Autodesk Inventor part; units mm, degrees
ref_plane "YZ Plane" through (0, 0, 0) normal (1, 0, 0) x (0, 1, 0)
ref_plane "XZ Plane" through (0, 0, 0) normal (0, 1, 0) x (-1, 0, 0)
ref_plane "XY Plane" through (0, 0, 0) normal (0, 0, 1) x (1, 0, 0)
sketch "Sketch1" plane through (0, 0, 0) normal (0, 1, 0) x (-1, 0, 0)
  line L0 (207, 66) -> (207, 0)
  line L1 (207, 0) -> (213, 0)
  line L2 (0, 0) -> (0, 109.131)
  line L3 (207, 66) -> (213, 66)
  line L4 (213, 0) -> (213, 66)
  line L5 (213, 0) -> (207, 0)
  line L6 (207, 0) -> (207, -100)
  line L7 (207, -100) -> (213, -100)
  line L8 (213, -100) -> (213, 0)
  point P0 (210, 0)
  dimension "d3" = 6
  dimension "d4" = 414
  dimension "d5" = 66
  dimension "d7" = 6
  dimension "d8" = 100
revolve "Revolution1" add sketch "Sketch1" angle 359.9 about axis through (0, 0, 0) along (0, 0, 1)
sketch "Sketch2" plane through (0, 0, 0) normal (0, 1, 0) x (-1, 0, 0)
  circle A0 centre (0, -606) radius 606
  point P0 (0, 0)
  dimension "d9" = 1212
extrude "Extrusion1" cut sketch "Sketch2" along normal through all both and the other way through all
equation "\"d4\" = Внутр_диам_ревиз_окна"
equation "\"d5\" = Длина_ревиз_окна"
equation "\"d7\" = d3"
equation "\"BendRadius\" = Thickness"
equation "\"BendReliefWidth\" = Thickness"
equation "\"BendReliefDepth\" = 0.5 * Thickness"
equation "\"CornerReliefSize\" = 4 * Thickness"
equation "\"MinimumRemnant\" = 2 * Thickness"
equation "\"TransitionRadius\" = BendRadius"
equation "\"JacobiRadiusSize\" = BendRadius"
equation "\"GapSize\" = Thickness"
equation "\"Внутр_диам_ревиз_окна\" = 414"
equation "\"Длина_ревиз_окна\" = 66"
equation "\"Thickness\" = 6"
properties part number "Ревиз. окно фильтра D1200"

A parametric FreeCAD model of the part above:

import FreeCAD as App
import Part
import Sketcher

V = App.Vector

doc = App.newDocument("Part")
body = doc.addObject("PartDesign::Body", "Body")

sketch1 = body.newObject("Sketcher::SketchObject", "Sketch")
sketch1.AttachmentSupport = (doc.getObject("XZ_Plane"), [""])
sketch1.MapMode = "FlatFace"
sketch1.addGeometry([
    Part.LineSegment(V(-213, 66, 0), V(-207, 66, 0)),
    Part.LineSegment(V(-207, 66, 0), V(-207, -100, 0)),
    Part.LineSegment(V(-207, -100, 0), V(-213, -100, 0)),
    Part.LineSegment(V(-213, -100, 0), V(-213, 66, 0)),
], False)
sketch1.addConstraint([
    Sketcher.Constraint("Coincident", 0, 2, 1, 1),
    Sketcher.Constraint("Coincident", 1, 2, 2, 1),
    Sketcher.Constraint("Coincident", 2, 2, 3, 1),
    Sketcher.Constraint("Coincident", 3, 2, 0, 1),
    Sketcher.Constraint("Horizontal", 0),
    Sketcher.Constraint("Vertical", 1),
    Sketcher.Constraint("Horizontal", 2),
    Sketcher.Constraint("Vertical", 3),
    Sketcher.Constraint("DistanceX", 0, 1, 0, 2, 6.0),
    Sketcher.Constraint("DistanceY", -1, 1, 0, 2, 66.0),
    Sketcher.Constraint("DistanceY", 1, 2, -1, 1, 100.0),
    Sketcher.Constraint("DistanceX", 0, 2, -1, 1, 207.0),
])
revolution = body.newObject("PartDesign::Revolution", "Revolution")
revolution.Profile = sketch1
revolution.ReferenceAxis = (sketch1, ["V_Axis"])
revolution.Angle = 359.9

sketch2 = body.newObject("Sketcher::SketchObject", "Sketch001")
sketch2.AttachmentSupport = (doc.getObject("XZ_Plane"), [""])
sketch2.MapMode = "FlatFace"
sketch2.addGeometry(Part.Circle(V(0, -606, 0), V(0, 0, 1), 606), False)
sketch2.addConstraint([
    Sketcher.Constraint("PointOnObject", 0, 3, -2),
    Sketcher.Constraint("Diameter", 0, 1212.0),
    Sketcher.Constraint("DistanceY", 0, 3, -1, 1, 606.0),
])
pocket1 = body.newObject("PartDesign::Pocket", "Pocket")
pocket1.Profile = sketch2
pocket1.Type = "ThroughAll"
pocket1.Midplane = True

doc.recompute()
